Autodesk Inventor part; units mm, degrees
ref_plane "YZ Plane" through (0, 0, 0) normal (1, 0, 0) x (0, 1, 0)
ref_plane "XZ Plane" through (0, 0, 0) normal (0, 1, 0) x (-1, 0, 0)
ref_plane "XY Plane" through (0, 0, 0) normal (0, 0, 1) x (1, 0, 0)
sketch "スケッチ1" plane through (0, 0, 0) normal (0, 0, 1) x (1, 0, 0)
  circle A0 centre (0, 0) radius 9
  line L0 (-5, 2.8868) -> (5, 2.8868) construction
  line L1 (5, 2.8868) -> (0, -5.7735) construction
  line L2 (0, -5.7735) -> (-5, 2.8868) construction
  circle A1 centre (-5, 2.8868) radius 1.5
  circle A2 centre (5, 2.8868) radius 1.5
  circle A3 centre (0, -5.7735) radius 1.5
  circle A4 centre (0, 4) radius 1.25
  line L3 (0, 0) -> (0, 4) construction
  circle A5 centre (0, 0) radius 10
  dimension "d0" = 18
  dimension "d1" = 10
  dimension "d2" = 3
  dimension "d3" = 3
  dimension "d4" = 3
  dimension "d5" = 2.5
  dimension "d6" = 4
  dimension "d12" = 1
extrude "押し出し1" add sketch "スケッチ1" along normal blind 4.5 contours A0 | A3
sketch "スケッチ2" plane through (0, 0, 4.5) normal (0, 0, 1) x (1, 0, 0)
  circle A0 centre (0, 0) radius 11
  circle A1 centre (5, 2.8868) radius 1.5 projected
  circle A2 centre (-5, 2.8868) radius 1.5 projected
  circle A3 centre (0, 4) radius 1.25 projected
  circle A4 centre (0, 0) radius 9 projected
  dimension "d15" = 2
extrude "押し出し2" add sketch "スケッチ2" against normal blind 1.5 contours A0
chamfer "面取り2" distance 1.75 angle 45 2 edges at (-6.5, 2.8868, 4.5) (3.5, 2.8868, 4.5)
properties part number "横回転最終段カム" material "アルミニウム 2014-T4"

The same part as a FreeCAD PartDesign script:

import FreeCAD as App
import Part
import Sketcher

V = App.Vector
Q = App.Units.Quantity


def edges_at(feature, points):
    """Names of the edges that pass closest to the given points."""
    edges = feature.Shape.Edges
    near = lambda p: min(range(len(edges)), key=lambda i: edges[i].distToShape(Part.Vertex(*p))[0])
    return sorted({f"Edge{near(p) + 1}" for p in points})

doc = App.newDocument("Part")
body = doc.addObject("PartDesign::Body", "Body")

# Sketch on XY plane
sketch1 = body.newObject("Sketcher::SketchObject", "Sketch")
sketch1.AttachmentSupport = (doc.getObject("XY_Plane"), [""])
sketch1.MapMode = "FlatFace"
sketch1.addGeometry(Part.Circle(V(0, 0, 0), V(0, 0, 1), 9), False)
sketch1.addGeometry(Part.Circle(V(-5, 2.8868, 0), V(0, 0, 1), 1.5), False)
sketch1.addGeometry(Part.Circle(V(0, 4, 0), V(0, 0, 1), 1.25), False)
sketch1.addGeometry(Part.Circle(V(5, 2.8868, 0), V(0, 0, 1), 1.5), False)
sketch1.addConstraint(Sketcher.Constraint("Coincident", 0, 3, -1, 1))
sketch1.addConstraint(Sketcher.Constraint("Equal", 1, 3))
sketch1.addConstraint(Sketcher.Constraint("Symmetric", 1, 3, 3, 3, -2))
sketch1.addConstraint(Sketcher.Constraint("PointOnObject", 2, 3, -2))
sketch1.addConstraint(Sketcher.Constraint("Diameter", 0, Q("18 mm")))
sketch1.addConstraint(Sketcher.Constraint("Diameter", 1, Q("3 mm")))
sketch1.addConstraint(Sketcher.Constraint("Diameter", 2, Q("2.5 mm")))
sketch1.addConstraint(Sketcher.Constraint("DistanceY", -1, 1, 2, 3, Q("4 mm")))
sketch1.addConstraint(Sketcher.Constraint("DistanceX", 1, 3, 3, 3, Q("10 mm")))
sketch1.addConstraint(Sketcher.Constraint("DistanceY", -1, 1, 1, 3, Q("2.8868 mm")))
pad1 = body.newObject("PartDesign::Pad", "Pad")
pad1.Profile = sketch1
pad1.Length = 4.5

# Sketch on XY plane
sketch2 = body.newObject("Sketcher::SketchObject", "Sketch001")
sketch2.AttachmentSupport = (doc.getObject("XY_Plane"), [""])
sketch2.MapMode = "FlatFace"
sketch2.AttachmentOffset = App.Placement(V(0, 0, 4.5), App.Rotation())
sketch2.addGeometry(Part.Circle(V(0, 0, 0), V(0, 0, 1), 11), False)
sketch2.addGeometry(Part.Circle(V(0, 0, 0), V(0, 0, 1), 9), False)
sketch2.addConstraint(Sketcher.Constraint("Coincident", 0, 3, -1, 1))
sketch2.addConstraint(Sketcher.Constraint("Coincident", 1, 3, -1, 1))
sketch2.addConstraint(Sketcher.Constraint("Diameter", 0, Q("22 mm")))
sketch2.addConstraint(Sketcher.Constraint("Diameter", 1, Q("18 mm")))
pad2 = body.newObject("PartDesign::Pad", "Pad001")
pad2.Profile = sketch2
pad2.Length = 1.5
pad2.Reversed = True
doc.recompute()

chamfer = body.newObject("PartDesign::Chamfer", "Chamfer")
chamfer.Base = (pad2, edges_at(pad2, [(-6.5, 2.887, 4.5), (3.5, 2.887, 4.5)]))
chamfer.Size = 1.75

doc.recompute()
